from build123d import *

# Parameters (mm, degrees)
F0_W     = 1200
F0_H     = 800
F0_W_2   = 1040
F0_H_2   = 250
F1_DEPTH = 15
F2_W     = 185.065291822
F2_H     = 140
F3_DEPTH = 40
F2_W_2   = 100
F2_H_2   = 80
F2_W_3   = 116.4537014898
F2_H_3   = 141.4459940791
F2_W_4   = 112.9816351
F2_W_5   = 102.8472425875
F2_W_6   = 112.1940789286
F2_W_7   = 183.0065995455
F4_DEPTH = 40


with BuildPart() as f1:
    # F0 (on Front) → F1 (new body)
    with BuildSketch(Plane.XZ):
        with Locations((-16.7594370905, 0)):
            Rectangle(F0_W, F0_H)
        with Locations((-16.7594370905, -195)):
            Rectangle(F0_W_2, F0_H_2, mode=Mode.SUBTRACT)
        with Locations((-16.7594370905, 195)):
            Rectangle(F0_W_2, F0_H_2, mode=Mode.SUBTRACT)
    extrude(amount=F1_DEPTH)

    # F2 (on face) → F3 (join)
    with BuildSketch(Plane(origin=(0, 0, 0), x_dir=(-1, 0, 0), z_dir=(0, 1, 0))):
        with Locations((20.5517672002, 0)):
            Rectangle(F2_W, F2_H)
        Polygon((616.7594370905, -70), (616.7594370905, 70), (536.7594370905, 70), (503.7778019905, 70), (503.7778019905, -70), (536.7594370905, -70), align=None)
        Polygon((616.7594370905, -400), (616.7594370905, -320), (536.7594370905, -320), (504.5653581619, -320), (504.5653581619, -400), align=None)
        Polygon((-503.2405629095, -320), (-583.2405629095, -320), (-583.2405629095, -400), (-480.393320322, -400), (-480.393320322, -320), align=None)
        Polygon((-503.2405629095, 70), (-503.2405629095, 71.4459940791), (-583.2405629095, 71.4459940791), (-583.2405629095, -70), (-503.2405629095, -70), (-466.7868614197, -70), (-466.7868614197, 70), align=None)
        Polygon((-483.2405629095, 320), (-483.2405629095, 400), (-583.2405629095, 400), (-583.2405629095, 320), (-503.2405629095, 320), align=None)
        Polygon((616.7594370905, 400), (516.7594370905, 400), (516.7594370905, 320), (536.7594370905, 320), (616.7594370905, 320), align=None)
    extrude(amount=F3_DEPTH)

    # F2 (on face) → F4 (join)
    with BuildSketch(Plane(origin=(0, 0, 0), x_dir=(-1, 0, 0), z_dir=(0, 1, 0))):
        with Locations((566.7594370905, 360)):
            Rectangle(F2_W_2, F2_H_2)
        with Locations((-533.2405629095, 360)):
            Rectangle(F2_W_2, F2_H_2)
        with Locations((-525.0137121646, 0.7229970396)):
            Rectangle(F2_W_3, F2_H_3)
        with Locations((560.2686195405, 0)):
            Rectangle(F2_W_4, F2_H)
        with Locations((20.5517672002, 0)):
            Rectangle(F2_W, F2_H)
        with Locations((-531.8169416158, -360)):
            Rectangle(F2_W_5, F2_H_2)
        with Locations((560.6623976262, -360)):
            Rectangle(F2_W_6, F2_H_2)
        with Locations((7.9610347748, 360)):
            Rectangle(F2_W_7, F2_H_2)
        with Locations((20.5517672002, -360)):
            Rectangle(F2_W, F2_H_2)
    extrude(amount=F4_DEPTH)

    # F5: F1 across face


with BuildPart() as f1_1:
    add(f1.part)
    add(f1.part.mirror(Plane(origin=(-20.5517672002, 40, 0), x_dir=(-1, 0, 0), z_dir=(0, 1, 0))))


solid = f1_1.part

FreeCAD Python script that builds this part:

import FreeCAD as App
import Part
import Sketcher
from FreeCAD import Vector
Q = App.Units.Quantity


def add_polygon(sketch, points):
    """Adds a closed chain of lines whose ends are joined by coincident constraints."""
    first, n = sketch.GeometryCount, len(points)
    for a, b in zip(points, points[1:] + points[:1]):
        sketch.addGeometry(Part.LineSegment(App.Vector(*a, 0), App.Vector(*b, 0)), False)
    for i in range(n):
        sketch.addConstraint(Sketcher.Constraint("Coincident", first + i, 2, first + (i + 1) % n, 1))

doc = App.newDocument("Part")
body = doc.addObject("PartDesign::Body", "Body")

# Sketch on XZ plane
sketch1 = body.newObject("Sketcher::SketchObject", "Sketch")
sketch1.AttachmentSupport = (doc.getObject("XZ_Plane"), [""])
sketch1.MapMode = "FlatFace"
add_polygon(sketch1, [(-616.759437, 400), (-616.759437, -400), (583.240563, -400), (583.240563, 400)])  # lines 0-3
add_polygon(sketch1, [(503.240563, -320), (-536.759437, -320), (-536.759437, -70), (503.240563, -70)])  # lines 4-7
add_polygon(sketch1, [(503.240563, 70), (-536.759437, 70), (-536.759437, 320), (503.240563, 320)])  # lines 8-11
sketch1.addConstraint([
    Sketcher.Constraint("Vertical", 0),
    Sketcher.Constraint("Horizontal", 1),
    Sketcher.Constraint("Vertical", 2),
    Sketcher.Constraint("Horizontal", 3),
    Sketcher.Constraint("Horizontal", 4),
    Sketcher.Constraint("Vertical", 5),
    Sketcher.Constraint("Horizontal", 6),
    Sketcher.Constraint("Vertical", 7),
    Sketcher.Constraint("Horizontal", 8),
    Sketcher.Constraint("Vertical", 9),
    Sketcher.Constraint("Horizontal", 10),
    Sketcher.Constraint("Vertical", 11),
    Sketcher.Constraint("Symmetric", 5, 2, 8, 2, -1),
    Sketcher.Constraint("Symmetric", 7, 2, 10, 2, -1),
    Sketcher.Constraint("DistanceX", 1, 1, 1, 2, Q("1200 mm")),
    Sketcher.Constraint("DistanceX", 4, 2, 4, 1, Q("1040 mm")),
    Sketcher.Constraint("DistanceY", 0, 2, 0, 1, Q("800 mm")),
    Sketcher.Constraint("DistanceY", 5, 1, 5, 2, Q("250 mm")),
    Sketcher.Constraint("DistanceY", 0, 2, -1, 1, Q("400 mm")),
    Sketcher.Constraint("DistanceY", 4, 2, -1, 1, Q("320 mm")),
    Sketcher.Constraint("DistanceX", 0, 2, 4, 2, Q("80 mm")),
    Sketcher.Constraint("DistanceX", 0, 2, -1, 1, Q("616.759437 mm")),
])
pad1 = body.newObject("PartDesign::Pad", "Pad")
pad1.Profile = sketch1
pad1.Length = 15

# Sketch on XZ plane
sketch2 = body.newObject("Sketcher::SketchObject", "Sketch001")
sketch2.AttachmentSupport = (doc.getObject("XZ_Plane"), [""])
sketch2.MapMode = "FlatFace"
add_polygon(sketch2, [(71.980879, 70), (71.980879, -70), (-113.084413, -70), (-113.084413, 70)])  # lines 0-3
add_polygon(sketch2, [(-616.759437, -70), (-616.759437, 70), (-503.777802, 70), (-503.777802, -70)])  # lines 4-7
add_polygon(sketch2, [(-616.759437, -400), (-616.759437, -320), (-504.565358, -320), (-504.565358, -400)])  # lines 8-11
add_polygon(sketch2, [(583.240563, -320), (583.240563, -400), (480.39332, -400), (480.39332, -320)])  # lines 12-15
add_polygon(sketch2, [(503.240563, 70), (503.240563, 71.445994), (583.240563, 71.445994), (583.240563, -70), (466.786861, -70), (466.786861, 70)])  # lines 16-21
add_polygon(sketch2, [(483.240563, 320), (483.240563, 400), (583.240563, 400), (583.240563, 320)])  # lines 22-25
add_polygon(sketch2, [(-616.759437, 400), (-516.759437, 400), (-516.759437, 320), (-616.759437, 320)])  # lines 26-29
sketch2.addConstraint([
    Sketcher.Constraint("Vertical", 0),
    Sketcher.Constraint("Horizontal", 1),
    Sketcher.Constraint("Vertical", 2),
    Sketcher.Constraint("Horizontal", 3),
    Sketcher.Constraint("Vertical", 4),
    Sketcher.Constraint("Horizontal", 5),
    Sketcher.Constraint("Vertical", 6),
    Sketcher.Constraint("Horizontal", 7),
    Sketcher.Constraint("Vertical", 8),
    Sketcher.Constraint("Horizontal", 9),
    Sketcher.Constraint("Vertical", 10),
    Sketcher.Constraint("Horizontal", 11),
    Sketcher.Constraint("Vertical", 12),
    Sketcher.Constraint("Horizontal", 13),
    Sketcher.Constraint("Vertical", 14),
    Sketcher.Constraint("Horizontal", 15),
    Sketcher.Constraint("Vertical", 16),
    Sketcher.Constraint("Horizontal", 17),
    Sketcher.Constraint("Vertical", 18),
    Sketcher.Constraint("Horizontal", 19),
    Sketcher.Constraint("Vertical", 20),
    Sketcher.Constraint("Horizontal", 21),
    Sketcher.Constraint("Vertical", 22),
    Sketcher.Constraint("Horizontal", 23),
    Sketcher.Constraint("Vertical", 24),
    Sketcher.Constraint("Horizontal", 25),
    Sketcher.Constraint("Horizontal", 26),
    Sketcher.Constraint("Vertical", 27),
    Sketcher.Constraint("Horizontal", 28),
    Sketcher.Constraint("Vertical", 29),
    Sketcher.Constraint("Symmetric", 12, 2, 23, 2, -1),
    Sketcher.Constraint("Symmetric", 8, 2, 28, 2, -1),
    Sketcher.Constraint("Horizontal", 3, 2, 4, 2),
    Sketcher.Constraint("Horizontal", 1, 2, 6, 2),
    Sketcher.Constraint("Horizontal", 11, 2, 12, 2),
    Sketcher.Constraint("Horizontal", 9, 2, 14, 2),
    Sketcher.Constraint("Horizontal", 7, 2, 18, 2),
    Sketcher.Constraint("Horizontal", 5, 2, 20, 2),
    Sketcher.Constraint("Horizontal", 23, 2, 26, 2),
    Sketcher.Constraint("Horizontal", 25, 2, 27, 2),
    Sketcher.Constraint("Vertical", 7, 2, 8, 2),
    Sketcher.Constraint("Vertical", 15, 2, 17, 2),
    Sketcher.Constraint("Equal", 25, 26),
    Sketcher.Constraint("Equal", 17, 8),
    Sketcher.Constraint("DistanceX", 17, 1, 17, 2, Q("80 mm")),
    Sketcher.Constraint("DistanceX", 23, 1, 23, 2, Q("100 mm")),
    Sketcher.Constraint("DistanceY", 0, 2, 0, 1, Q("140 mm")),
    Sketcher.Constraint("DistanceY", 0, 2, -1, 1, Q("70 mm")),
    Sketcher.Constraint("DistanceY", 8, 2, -1, 1, Q("320 mm")),
    Sketcher.Constraint("DistanceX", 19, 2, 19, 1, Q("116.453701 mm")),
    Sketcher.Constraint("DistanceX", 1, 2, 1, 1, Q("185.065292 mm")),
    Sketcher.Constraint("DistanceX", 9, 1, 9, 2, Q("112.194079 mm")),
    Sketcher.Constraint("DistanceX", 5, 2, -1, 1, Q("503.777802 mm")),
    Sketcher.Constraint("DistanceX", 5, 1, 5, 2, Q("112.981635 mm")),
    Sketcher.Constraint("DistanceX", 13, 2, 13, 1, Q("102.847243 mm")),
    Sketcher.Constraint("DistanceY", 16, 1, 16, 2, Q("1.445994 mm")),
    Sketcher.Constraint("DistanceX", -1, 1, 0, 2, Q("71.980879 mm")),
    Sketcher.Constraint("DistanceX", -1, 1, 13, 2, Q("480.39332 mm")),
])
pad2 = body.newObject("PartDesign::Pad", "Pad001")
pad2.Profile = sketch2
pad2.Length = 40
pad2.Reversed = True

# Sketch on XZ plane
sketch3 = body.newObject("Sketcher::SketchObject", "Sketch002")
sketch3.AttachmentSupport = (doc.getObject("XZ_Plane"), [""])
sketch3.MapMode = "FlatFace"
add_polygon(sketch3, [(-516.759437, 400), (-516.759437, 320), (-616.759437, 320), (-616.759437, 400)])  # lines 0-3
add_polygon(sketch3, [(583.240563, 400), (583.240563, 320), (483.240563, 320), (483.240563, 400)])  # lines 4-7
add_polygon(sketch3, [(583.240563, 71.445994), (583.240563, -70), (466.786861, -70), (466.786861, 71.445994)])  # lines 8-11
add_polygon(sketch3, [(-503.777802, 70), (-503.777802, -70), (-616.759437, -70), (-616.759437, 70)])  # lines 12-15
add_polygon(sketch3, [(71.980879, 70), (71.980879, -70), (-113.084413, -70), (-113.084413, 70)])  # lines 16-19
add_polygon(sketch3, [(583.240563, -320), (583.240563, -400), (480.39332, -400), (480.39332, -320)])  # lines 20-23
add_polygon(sketch3, [(-504.565358, -320), (-504.565358, -400), (-616.759437, -400), (-616.759437, -320)])  # lines 24-27
add_polygon(sketch3, [(83.542265, 400), (83.542265, 320), (-99.464335, 320), (-99.464335, 400)])  # lines 28-31
add_polygon(sketch3, [(71.980879, -320), (71.980879, -400), (-113.084413, -400), (-113.084413, -320)])  # lines 32-35
sketch3.addConstraint([
    Sketcher.Constraint("Vertical", 0),
    Sketcher.Constraint("Horizontal", 1),
    Sketcher.Constraint("Vertical", 2),
    Sketcher.Constraint("Horizontal", 3),
    Sketcher.Constraint("Vertical", 4),
    Sketcher.Constraint("Horizontal", 5),
    Sketcher.Constraint("Vertical", 6),
    Sketcher.Constraint("Horizontal", 7),
    Sketcher.Constraint("Vertical", 8),
    Sketcher.Constraint("Horizontal", 9),
    Sketcher.Constraint("Vertical", 10),
    Sketcher.Constraint("Horizontal", 11),
    Sketcher.Constraint("Vertical", 12),
    Sketcher.Constraint("Horizontal", 13),
    Sketcher.Constraint("Vertical", 14),
    Sketcher.Constraint("Horizontal", 15),
    Sketcher.Constraint("Vertical", 16),
    Sketcher.Constraint("Horizontal", 17),
    Sketcher.Constraint("Vertical", 18),
    Sketcher.Constraint("Horizontal", 19),
    Sketcher.Constraint("Vertical", 20),
    Sketcher.Constraint("Horizontal", 21),
    Sketcher.Constraint("Vertical", 22),
    Sketcher.Constraint("Horizontal", 23),
    Sketcher.Constraint("Vertical", 24),
    Sketcher.Constraint("Horizontal", 25),
    Sketcher.Constraint("Vertical", 26),
    Sketcher.Constraint("Horizontal", 27),
    Sketcher.Constraint("Vertical", 28),
    Sketcher.Constraint("Horizontal", 29),
    Sketcher.Constraint("Vertical", 30),
    Sketcher.Constraint("Horizontal", 31),
    Sketcher.Constraint("Vertical", 32),
    Sketcher.Constraint("Horizontal", 33),
    Sketcher.Constraint("Vertical", 34),
    Sketcher.Constraint("Horizontal", 35),
    Sketcher.Constraint("Symmetric", 7, 2, 20, 2, -1),
    Sketcher.Constraint("Symmetric", 2, 2, 25, 2, -1),
    Sketcher.Constraint("Horizontal", 1, 2, 4, 2),
    Sketcher.Constraint("Horizontal", 3, 2, 6, 2),
    Sketcher.Constraint("Horizontal", 9, 2, 12, 2),
    Sketcher.Constraint("Horizontal", 13, 2, 16, 2),
    Sketcher.Constraint("Horizontal", 15, 2, 18, 2),
    Sketcher.Constraint("Horizontal", 23, 2, 26, 2),
    Sketcher.Constraint("Horizontal", 5, 2, 28, 2),
    Sketcher.Constraint("Horizontal", 7, 2, 30, 2),
    Sketcher.Constraint("Horizontal", 25, 2, 32, 2),
    Sketcher.Constraint("Horizontal", 27, 2, 34, 2),
    Sketcher.Constraint("Vertical", 7, 2, 8, 2),
    Sketcher.Constraint("Vertical", 2, 2, 13, 2),
    Sketcher.Constraint("Vertical", 19, 2, 32, 2),
    Sketcher.Constraint("Vertical", 18, 2, 33, 2),
    Sketcher.Constraint("Equal", 3, 5),
    Sketcher.Constraint("Equal", 6, 20),
    Sketcher.Constraint("DistanceX", 1, 2, 1, 1, Q("100 mm")),
    Sketcher.Constraint("DistanceY", 0, 2, 0, 1, Q("80 mm")),
    Sketcher.Constraint("DistanceY", 12, 2, 12, 1, Q("140 mm")),
    Sketcher.Constraint("DistanceY", -1, 1, 0, 2, Q("320 mm")),
    Sketcher.Constraint("DistanceY", 8, 2, -1, 1, Q("70 mm")),
    Sketcher.Constraint("DistanceX", 0, 2, 4, 2, Q("1100 mm")),
    Sketcher.Constraint("DistanceX", 9, 2, 9, 1, Q("116.453701 mm")),
    Sketcher.Constraint("DistanceX", 29, 2, 29, 1, Q("183.0066 mm")),
    Sketcher.Constraint("DistanceX", 17, 2, 17, 1, Q("185.065292 mm")),
    Sketcher.Constraint("DistanceX", 25, 2, 25, 1, Q("112.194079 mm")),
    Sketcher.Constraint("DistanceX", 12, 2, -1, 1, Q("503.777802 mm")),
    Sketcher.Constraint("DistanceX", 13, 2, 13, 1, Q("112.981635 mm")),
    Sketcher.Constraint("DistanceX", 21, 2, 21, 1, Q("102.847243 mm")),
    Sketcher.Constraint("DistanceY", 8, 2, 8, 1, Q("141.445994 mm")),
    Sketcher.Constraint("DistanceX", -1, 1, 16, 2, Q("71.980879 mm")),
    Sketcher.Constraint("DistanceX", 18, 2, 28, 2, Q("196.626678 mm")),
])
pad3 = body.newObject("PartDesign::Pad", "Pad002")
pad3.Profile = sketch3
pad3.Length = 40
pad3.Reversed = True
body2 = doc.addObject("PartDesign::Body", "Body001")
doc.recompute()

body2.BaseFeature = body
doc.recompute()

mirroring = doc.addObject("Part::Mirroring", "Mirroring")
mirroring.Source = body
mirroring.Base = Vector(-20.551767, 40, 0)
mirroring.Normal = Vector(0, 1, 0)
body3 = doc.addObject("PartDesign::Body", "Body002")
body3.BaseFeature = mirroring
boolean = body2.newObject("PartDesign::Boolean", "Boolean")
boolean.Type = "Fuse"
boolean.addObjects([body3])
doc.recompute()
mirroring.Visibility = False

doc.recompute()
